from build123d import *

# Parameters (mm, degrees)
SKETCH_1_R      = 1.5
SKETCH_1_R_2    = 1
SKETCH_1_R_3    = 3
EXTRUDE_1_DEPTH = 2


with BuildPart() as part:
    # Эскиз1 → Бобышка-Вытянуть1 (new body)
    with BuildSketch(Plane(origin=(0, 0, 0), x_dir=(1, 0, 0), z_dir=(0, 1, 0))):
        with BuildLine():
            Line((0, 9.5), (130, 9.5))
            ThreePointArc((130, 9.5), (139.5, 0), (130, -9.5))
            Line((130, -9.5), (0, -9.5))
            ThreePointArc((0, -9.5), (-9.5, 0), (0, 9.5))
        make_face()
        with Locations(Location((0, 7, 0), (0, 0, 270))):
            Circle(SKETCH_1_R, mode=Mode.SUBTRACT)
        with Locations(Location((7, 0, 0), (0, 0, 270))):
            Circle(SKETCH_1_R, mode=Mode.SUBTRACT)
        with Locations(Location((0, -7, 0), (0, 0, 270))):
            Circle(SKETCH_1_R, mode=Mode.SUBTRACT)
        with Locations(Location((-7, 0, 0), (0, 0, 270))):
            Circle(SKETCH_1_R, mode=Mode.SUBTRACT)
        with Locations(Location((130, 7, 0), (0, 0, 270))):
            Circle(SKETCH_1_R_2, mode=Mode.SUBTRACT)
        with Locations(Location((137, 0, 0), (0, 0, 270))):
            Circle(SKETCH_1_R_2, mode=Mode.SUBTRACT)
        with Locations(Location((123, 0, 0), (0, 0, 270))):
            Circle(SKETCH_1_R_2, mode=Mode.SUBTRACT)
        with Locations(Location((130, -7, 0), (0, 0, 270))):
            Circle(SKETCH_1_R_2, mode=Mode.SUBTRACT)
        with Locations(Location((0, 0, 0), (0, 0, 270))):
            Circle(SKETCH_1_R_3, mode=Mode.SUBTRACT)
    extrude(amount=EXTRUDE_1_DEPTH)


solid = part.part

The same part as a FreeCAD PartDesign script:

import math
import FreeCAD as App
import Part
import Sketcher
Q = App.Units.Quantity

doc = App.newDocument("Part")
body = doc.addObject("PartDesign::Body", "Body")

# Sketch on XZ plane
sketch1 = body.newObject("Sketcher::SketchObject", "Sketch")
sketch1.AttachmentSupport = (doc.getObject("XZ_Plane"), [""])
sketch1.MapMode = "FlatFace"
sketch1.addGeometry(Part.LineSegment(App.Vector(130, -9.5, 0), App.Vector(0, -9.5, 0)), False)
sketch1.addGeometry(Part.ArcOfCircle(Part.Circle(App.Vector(0, 0, 0), App.Vector(0, 0, 1), 9.5), math.radians(90), math.radians(270)), False)
sketch1.addGeometry(Part.LineSegment(App.Vector(0, 9.5, 0), App.Vector(130, 9.5, 0)), False)
sketch1.addGeometry(Part.ArcOfCircle(Part.Circle(App.Vector(130, 0, 0), App.Vector(0, 0, 1), 9.5), math.radians(-90), math.radians(90)), False)
sketch1.addGeometry(Part.Circle(App.Vector(130, 7, 0), App.Vector(0, 0, 1), 1), False)
sketch1.addGeometry(Part.Circle(App.Vector(0, 7, 0), App.Vector(0, 0, 1), 1.5), False)
sketch1.addGeometry(Part.Circle(App.Vector(137, 0, 0), App.Vector(0, 0, 1), 1), False)
sketch1.addGeometry(Part.Circle(App.Vector(123, 0, 0), App.Vector(0, 0, 1), 1), False)
sketch1.addGeometry(Part.Circle(App.Vector(130, -7, 0), App.Vector(0, 0, 1), 1), False)
sketch1.addGeometry(Part.Circle(App.Vector(7, 0, 0), App.Vector(0, 0, 1), 1.5), False)
sketch1.addGeometry(Part.Circle(App.Vector(0, 0, 0), App.Vector(0, 0, 1), 3), False)
sketch1.addGeometry(Part.Circle(App.Vector(-7, 0, 0), App.Vector(0, 0, 1), 1.5), False)
sketch1.addGeometry(Part.Circle(App.Vector(0, -7, 0), App.Vector(0, 0, 1), 1.5), False)
sketch1.addConstraint(Sketcher.Constraint("Tangent", 0, 2, 1, 2))
sketch1.addConstraint(Sketcher.Constraint("Tangent", 1, 1, 2, 1))
sketch1.addConstraint(Sketcher.Constraint("Tangent", 2, 2, 3, 2))
sketch1.addConstraint(Sketcher.Constraint("Tangent", 3, 1, 0, 1))
sketch1.addConstraint(Sketcher.Constraint("Horizontal", 0))
sketch1.addConstraint(Sketcher.Constraint("Horizontal", 2))
sketch1.addConstraint(Sketcher.Constraint("Coincident", 1, 3, -1, 1))
sketch1.addConstraint(Sketcher.Constraint("Coincident", 10, 3, -1, 1))
sketch1.addConstraint(Sketcher.Constraint("Equal", 4, 6))
sketch1.addConstraint(Sketcher.Constraint("Equal", 6, 7))
sketch1.addConstraint(Sketcher.Constraint("Equal", 7, 8))
sketch1.addConstraint(Sketcher.Constraint("Equal", 5, 9))
sketch1.addConstraint(Sketcher.Constraint("Equal", 9, 11))
sketch1.addConstraint(Sketcher.Constraint("Equal", 11, 12))
sketch1.addConstraint(Sketcher.Constraint("Symmetric", 9, 3, 11, 3, -1, 1))
sketch1.addConstraint(Sketcher.Constraint("Symmetric", 5, 3, 12, 3, -1, 1))
sketch1.addConstraint(Sketcher.Constraint("Symmetric", 4, 3, 8, 3, -1))
sketch1.addConstraint(Sketcher.Constraint("PointOnObject", 5, 3, -2))
sketch1.addConstraint(Sketcher.Constraint("PointOnObject", 6, 3, -1))
sketch1.addConstraint(Sketcher.Constraint("PointOnObject", 7, 3, -1))
sketch1.addConstraint(Sketcher.Constraint("PointOnObject", 9, 3, -1))
sketch1.addConstraint(Sketcher.Constraint("Horizontal", 4, 3, 5, 3))
sketch1.addConstraint(Sketcher.Constraint("Vertical", 3, 3, 4, 3))
sketch1.addConstraint(Sketcher.Constraint("Diameter", 4, Q("2 mm")))
sketch1.addConstraint(Sketcher.Constraint("Diameter", 5, Q("3 mm")))
sketch1.addConstraint(Sketcher.Constraint("Diameter", 10, Q("6 mm")))
sketch1.addConstraint(Sketcher.Constraint("Radius", 1, Q("9.5 mm")))
sketch1.addConstraint(Sketcher.Constraint("DistanceX", 0, 2, 0, 1, Q("130 mm")))
sketch1.addConstraint(Sketcher.Constraint("DistanceY", -1, 1, 4, 3, Q("7 mm")))
sketch1.addConstraint(Sketcher.Constraint("DistanceX", -1, 1, 6, 3, Q("137 mm")))
sketch1.addConstraint(Sketcher.Constraint("DistanceX", -1, 1, 7, 3, Q("123 mm")))
sketch1.addConstraint(Sketcher.Constraint("DistanceX", -1, 1, 9, 3, Q("7 mm")))
pad1 = body.newObject("PartDesign::Pad", "Pad")
pad1.Profile = sketch1
pad1.Length = 2
pad1.Reversed = True

doc.recompute()
